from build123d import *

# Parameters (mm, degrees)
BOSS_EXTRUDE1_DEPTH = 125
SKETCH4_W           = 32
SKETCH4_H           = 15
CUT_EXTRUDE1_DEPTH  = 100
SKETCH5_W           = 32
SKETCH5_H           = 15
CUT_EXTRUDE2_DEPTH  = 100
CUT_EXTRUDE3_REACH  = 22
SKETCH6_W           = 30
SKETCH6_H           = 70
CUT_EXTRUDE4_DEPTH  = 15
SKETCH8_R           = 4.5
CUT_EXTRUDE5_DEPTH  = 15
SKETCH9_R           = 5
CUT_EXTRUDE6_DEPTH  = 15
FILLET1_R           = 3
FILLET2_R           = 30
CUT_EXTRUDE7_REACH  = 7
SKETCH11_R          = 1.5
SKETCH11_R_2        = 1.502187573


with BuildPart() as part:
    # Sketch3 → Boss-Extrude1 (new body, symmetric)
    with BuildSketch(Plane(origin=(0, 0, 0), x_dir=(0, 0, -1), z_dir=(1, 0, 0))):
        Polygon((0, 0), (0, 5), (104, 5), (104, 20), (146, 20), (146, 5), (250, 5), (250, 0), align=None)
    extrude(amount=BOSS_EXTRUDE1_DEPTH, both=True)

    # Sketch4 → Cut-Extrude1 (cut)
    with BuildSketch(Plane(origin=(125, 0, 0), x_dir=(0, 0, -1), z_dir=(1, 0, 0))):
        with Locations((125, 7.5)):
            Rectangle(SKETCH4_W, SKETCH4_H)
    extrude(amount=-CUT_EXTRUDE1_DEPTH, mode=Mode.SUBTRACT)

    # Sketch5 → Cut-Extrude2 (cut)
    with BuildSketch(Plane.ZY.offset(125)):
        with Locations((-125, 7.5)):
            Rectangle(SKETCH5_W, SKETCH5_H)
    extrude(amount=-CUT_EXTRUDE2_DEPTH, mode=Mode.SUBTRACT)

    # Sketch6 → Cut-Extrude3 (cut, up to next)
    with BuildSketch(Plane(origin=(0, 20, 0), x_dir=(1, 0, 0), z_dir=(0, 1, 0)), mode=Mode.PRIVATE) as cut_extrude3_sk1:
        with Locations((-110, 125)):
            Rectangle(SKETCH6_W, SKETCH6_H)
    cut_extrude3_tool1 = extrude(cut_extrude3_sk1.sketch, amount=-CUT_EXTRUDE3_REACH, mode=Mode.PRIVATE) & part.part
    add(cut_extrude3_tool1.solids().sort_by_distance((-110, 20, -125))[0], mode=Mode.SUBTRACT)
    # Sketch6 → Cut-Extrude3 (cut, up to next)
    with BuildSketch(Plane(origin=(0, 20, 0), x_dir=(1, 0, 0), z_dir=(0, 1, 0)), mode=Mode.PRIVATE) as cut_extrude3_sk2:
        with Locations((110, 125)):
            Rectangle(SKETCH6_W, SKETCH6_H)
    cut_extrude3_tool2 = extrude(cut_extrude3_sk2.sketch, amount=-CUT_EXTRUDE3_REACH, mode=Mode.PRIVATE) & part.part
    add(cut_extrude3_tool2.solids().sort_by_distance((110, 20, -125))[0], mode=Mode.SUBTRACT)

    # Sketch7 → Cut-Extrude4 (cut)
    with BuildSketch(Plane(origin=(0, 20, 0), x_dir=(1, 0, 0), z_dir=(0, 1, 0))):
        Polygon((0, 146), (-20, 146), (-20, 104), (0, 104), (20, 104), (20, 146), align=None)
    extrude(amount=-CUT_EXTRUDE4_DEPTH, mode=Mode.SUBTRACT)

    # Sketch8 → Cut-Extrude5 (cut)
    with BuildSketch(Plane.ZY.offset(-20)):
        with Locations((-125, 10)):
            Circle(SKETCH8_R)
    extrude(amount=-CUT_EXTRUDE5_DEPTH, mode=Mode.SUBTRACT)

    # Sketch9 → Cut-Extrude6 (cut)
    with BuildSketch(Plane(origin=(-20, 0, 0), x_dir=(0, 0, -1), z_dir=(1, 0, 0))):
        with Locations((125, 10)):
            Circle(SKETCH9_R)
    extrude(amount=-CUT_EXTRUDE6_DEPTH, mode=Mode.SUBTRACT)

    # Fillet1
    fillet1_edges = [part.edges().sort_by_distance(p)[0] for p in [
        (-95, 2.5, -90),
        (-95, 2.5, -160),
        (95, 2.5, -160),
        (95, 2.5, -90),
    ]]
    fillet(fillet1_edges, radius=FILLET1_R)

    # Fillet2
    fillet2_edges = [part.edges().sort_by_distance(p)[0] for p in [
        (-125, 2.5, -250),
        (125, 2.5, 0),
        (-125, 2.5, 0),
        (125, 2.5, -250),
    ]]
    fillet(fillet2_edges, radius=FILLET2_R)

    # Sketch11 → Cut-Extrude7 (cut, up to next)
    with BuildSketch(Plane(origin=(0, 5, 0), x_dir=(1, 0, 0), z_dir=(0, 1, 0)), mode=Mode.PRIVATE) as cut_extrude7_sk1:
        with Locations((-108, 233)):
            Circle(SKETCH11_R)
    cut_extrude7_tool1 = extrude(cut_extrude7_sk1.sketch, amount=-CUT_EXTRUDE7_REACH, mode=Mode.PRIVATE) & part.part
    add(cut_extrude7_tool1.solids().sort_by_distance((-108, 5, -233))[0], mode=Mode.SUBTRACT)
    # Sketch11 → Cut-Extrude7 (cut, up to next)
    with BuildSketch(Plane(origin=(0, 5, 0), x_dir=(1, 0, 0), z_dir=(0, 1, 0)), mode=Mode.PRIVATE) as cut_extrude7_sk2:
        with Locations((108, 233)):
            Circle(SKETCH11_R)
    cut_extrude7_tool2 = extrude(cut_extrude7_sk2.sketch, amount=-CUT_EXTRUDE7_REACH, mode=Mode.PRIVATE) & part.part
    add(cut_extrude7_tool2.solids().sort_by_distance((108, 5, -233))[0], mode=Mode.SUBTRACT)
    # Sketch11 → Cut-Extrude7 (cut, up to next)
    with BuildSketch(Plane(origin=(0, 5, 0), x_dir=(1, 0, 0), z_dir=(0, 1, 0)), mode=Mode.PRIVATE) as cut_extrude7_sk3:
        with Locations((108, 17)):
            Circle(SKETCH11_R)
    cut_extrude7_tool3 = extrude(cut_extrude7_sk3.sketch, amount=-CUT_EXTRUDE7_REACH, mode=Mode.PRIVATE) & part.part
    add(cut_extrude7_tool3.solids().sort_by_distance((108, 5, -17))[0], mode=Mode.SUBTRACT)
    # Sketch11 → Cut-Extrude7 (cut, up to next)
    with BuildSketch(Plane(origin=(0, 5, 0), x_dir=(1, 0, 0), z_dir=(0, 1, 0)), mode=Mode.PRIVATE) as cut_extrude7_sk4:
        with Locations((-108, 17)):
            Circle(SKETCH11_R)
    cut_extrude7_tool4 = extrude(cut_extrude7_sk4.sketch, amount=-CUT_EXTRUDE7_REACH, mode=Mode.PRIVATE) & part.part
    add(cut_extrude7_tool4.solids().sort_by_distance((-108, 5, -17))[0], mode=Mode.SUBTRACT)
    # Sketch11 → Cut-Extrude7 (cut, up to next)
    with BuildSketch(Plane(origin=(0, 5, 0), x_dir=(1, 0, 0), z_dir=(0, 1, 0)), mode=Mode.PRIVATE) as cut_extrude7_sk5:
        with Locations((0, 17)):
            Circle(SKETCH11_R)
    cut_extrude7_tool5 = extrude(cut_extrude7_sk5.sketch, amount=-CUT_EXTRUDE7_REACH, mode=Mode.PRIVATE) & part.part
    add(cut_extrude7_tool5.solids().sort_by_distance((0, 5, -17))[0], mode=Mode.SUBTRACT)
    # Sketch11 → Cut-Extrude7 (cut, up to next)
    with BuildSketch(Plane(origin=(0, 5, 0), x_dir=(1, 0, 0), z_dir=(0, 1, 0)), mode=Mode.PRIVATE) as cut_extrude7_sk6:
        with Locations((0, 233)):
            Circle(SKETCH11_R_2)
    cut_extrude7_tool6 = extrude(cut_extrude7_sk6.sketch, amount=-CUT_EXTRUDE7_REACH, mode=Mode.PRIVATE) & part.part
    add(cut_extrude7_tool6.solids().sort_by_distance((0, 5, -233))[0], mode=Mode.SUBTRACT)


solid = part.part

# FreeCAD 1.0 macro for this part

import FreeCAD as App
import Part
import Sketcher

V = App.Vector


def edges_at(feature, points):
    """Names of the edges that pass closest to the given points."""
    edges = feature.Shape.Edges
    near = lambda p: min(range(len(edges)), key=lambda i: edges[i].distToShape(Part.Vertex(*p))[0])
    return sorted({f"Edge{near(p) + 1}" for p in points})


def add_polygon(sketch, points):
    """Adds a closed chain of lines whose ends are joined by coincident constraints."""
    first, n = sketch.GeometryCount, len(points)
    for a, b in zip(points, points[1:] + points[:1]):
        sketch.addGeometry(Part.LineSegment(App.Vector(*a, 0), App.Vector(*b, 0)), False)
    for i in range(n):
        sketch.addConstraint(Sketcher.Constraint("Coincident", first + i, 2, first + (i + 1) % n, 1))

doc = App.newDocument("Part")
params = doc.addObject("Spreadsheet::Sheet", "Params")
for row, (alias, value) in enumerate([
    ("sketch1_width", "5 mm"),
    ("sketch1_width2", "15 mm"),
    ("sketch1_height", "250 mm"),
    ("sketch1_height2", "104 mm"),
    ("pad1_length", "250 mm"),
    ("sketch2_width", "15 mm"),
    ("sketch2_height", "32 mm"),
    ("pocket1_length", "100 mm"),
    ("sketch3_width", "15 mm"),
    ("sketch3_height", "32 mm"),
    ("pocket2_length", "100 mm"),
    ("sketch4_width", "30 mm"),
    ("sketch4_height", "70 mm"),
    ("pocket3_length", "20 mm"),
    ("sketch5_width", "30 mm"),
    ("sketch5_height", "70 mm"),
    ("pocket4_length", "20 mm"),
    ("sketch6_width", "40 mm"),
    ("sketch6_height", "42 mm"),
    ("pocket5_length", "15 mm"),
    ("sketch7_diameter", "9 mm"),
    ("pocket6_length", "15 mm"),
    ("sketch8_diameter", "10 mm"),
    ("pocket7_length", "15 mm"),
    ("fillet_radius", "3 mm"),
    ("fillet2_radius", "30 mm"),
    ("sketch9_diameter", "3 mm"),
    ("sketch10_diameter", "3 mm"),
    ("sketch11_diameter", "3 mm"),
    ("sketch12_diameter", "3 mm"),
    ("sketch13_diameter", "3 mm"),
], start=1):
    params.set(f"A{row}", alias)
    params.set(f"B{row}", "=" + value)
    params.setAlias(f"B{row}", alias)

body = doc.addObject("PartDesign::Body", "Body")

sketch1 = body.newObject("Sketcher::SketchObject", "Sketch")
sketch1.AttachmentSupport = (doc.getObject("YZ_Plane"), [""])
sketch1.MapMode = "FlatFace"
add_polygon(sketch1, [(5, 0), (0, 0), (0, -250), (5, -250), (5, -146), (20, -146), (20, -104), (5, -104)])
sketch1.addConstraint(Sketcher.Constraint("Horizontal", 0))
sketch1.addConstraint(Sketcher.Constraint("Vertical", 1))
sketch1.addConstraint(Sketcher.Constraint("Horizontal", 2))
sketch1.addConstraint(Sketcher.Constraint("Vertical", 3))
sketch1.addConstraint(Sketcher.Constraint("Horizontal", 4))
sketch1.addConstraint(Sketcher.Constraint("Vertical", 5))
sketch1.addConstraint(Sketcher.Constraint("Horizontal", 6))
sketch1.addConstraint(Sketcher.Constraint("Vertical", 7))
sketch1.addConstraint(Sketcher.Constraint("Coincident", 0, 2, -1, 1))
sketch1.addConstraint(Sketcher.Constraint("Vertical", 3, 2, 6, 2))
sketch1.addConstraint(Sketcher.Constraint("Equal", 3, 7))
sketch1.addConstraint(Sketcher.Constraint("DistanceX", 0, 2, 0, 1, 5.0))
sketch1.addConstraint(Sketcher.Constraint("DistanceX", 4, 1, 4, 2, 15.0))
sketch1.addConstraint(Sketcher.Constraint("DistanceY", 1, 2, 1, 1, 250.0))
sketch1.addConstraint(Sketcher.Constraint("DistanceY", 3, 1, 3, 2, 104.0))
sketch1.setExpression("Constraints[19]", "Params.sketch1_width")
sketch1.setExpression("Constraints[20]", "Params.sketch1_width2")
sketch1.setExpression("Constraints[21]", "Params.sketch1_height")
sketch1.setExpression("Constraints[22]", "Params.sketch1_height2")
pad1 = body.newObject("PartDesign::Pad", "Pad")
pad1.Profile = sketch1
pad1.setExpression("Length", "Params.pad1_length")
pad1.Midplane = True

sketch2 = body.newObject("Sketcher::SketchObject", "Sketch001")
sketch2.AttachmentSupport = (doc.getObject("YZ_Plane"), [""])
sketch2.MapMode = "FlatFace"
sketch2.AttachmentOffset = App.Placement(V(0, 0, 125), App.Rotation())
add_polygon(sketch2, [(15, -109), (0, -109), (0, -141), (15, -141)])
sketch2.addConstraint(Sketcher.Constraint("Horizontal", 0))
sketch2.addConstraint(Sketcher.Constraint("Vertical", 1))
sketch2.addConstraint(Sketcher.Constraint("Horizontal", 2))
sketch2.addConstraint(Sketcher.Constraint("Vertical", 3))
sketch2.addConstraint(Sketcher.Constraint("PointOnObject", 0, 2, -2))
sketch2.addConstraint(Sketcher.Constraint("DistanceX", 0, 2, 0, 1, 15.0))
sketch2.addConstraint(Sketcher.Constraint("DistanceY", 1, 2, 1, 1, 32.0))
sketch2.addConstraint(Sketcher.Constraint("DistanceY", 0, 2, -1, 1, 109.0))
sketch2.setExpression("Constraints[9]", "Params.sketch2_width")
sketch2.setExpression("Constraints[10]", "Params.sketch2_height")
pocket1 = body.newObject("PartDesign::Pocket", "Pocket")
pocket1.Profile = sketch2
pocket1.setExpression("Length", "Params.pocket1_length")

sketch3 = body.newObject("Sketcher::SketchObject", "Sketch002")
sketch3.AttachmentSupport = (doc.getObject("YZ_Plane"), [""])
sketch3.MapMode = "FlatFace"
sketch3.AttachmentOffset = App.Placement(V(0, 0, -125), App.Rotation())
add_polygon(sketch3, [(15, -141), (0, -141), (0, -109), (15, -109)])
sketch3.addConstraint(Sketcher.Constraint("Horizontal", 0))
sketch3.addConstraint(Sketcher.Constraint("Vertical", 1))
sketch3.addConstraint(Sketcher.Constraint("Horizontal", 2))
sketch3.addConstraint(Sketcher.Constraint("Vertical", 3))
sketch3.addConstraint(Sketcher.Constraint("PointOnObject", 0, 2, -2))
sketch3.addConstraint(Sketcher.Constraint("DistanceX", 0, 2, 0, 1, 15.0))
sketch3.addConstraint(Sketcher.Constraint("DistanceY", 1, 1, 1, 2, 32.0))
sketch3.addConstraint(Sketcher.Constraint("DistanceY", 0, 2, -1, 1, 141.0))
sketch3.setExpression("Constraints[9]", "Params.sketch3_width")
sketch3.setExpression("Constraints[10]", "Params.sketch3_height")
pocket2 = body.newObject("PartDesign::Pocket", "Pocket001")
pocket2.Profile = sketch3
pocket2.setExpression("Length", "Params.pocket2_length")
pocket2.Reversed = True

sketch4 = body.newObject("Sketcher::SketchObject", "Sketch003")
sketch4.AttachmentSupport = (doc.getObject("XZ_Plane"), [""])
sketch4.MapMode = "FlatFace"
sketch4.AttachmentOffset = App.Placement(V(0, 0, -20), App.Rotation())
add_polygon(sketch4, [(-125, -160), (-125, -90), (-95, -90), (-95, -160)])
sketch4.addConstraint(Sketcher.Constraint("Vertical", 0))
sketch4.addConstraint(Sketcher.Constraint("Horizontal", 1))
sketch4.addConstraint(Sketcher.Constraint("Vertical", 2))
sketch4.addConstraint(Sketcher.Constraint("Horizontal", 3))
sketch4.addConstraint(Sketcher.Constraint("DistanceX", 1, 1, 1, 2, 30.0))
sketch4.addConstraint(Sketcher.Constraint("DistanceY", 0, 1, 0, 2, 70.0))
sketch4.addConstraint(Sketcher.Constraint("DistanceX", 0, 2, -1, 1, 125.0))
sketch4.addConstraint(Sketcher.Constraint("DistanceY", 0, 2, -1, 1, 90.0))
sketch4.setExpression("Constraints[8]", "Params.sketch4_width")
sketch4.setExpression("Constraints[9]", "Params.sketch4_height")
pocket3 = body.newObject("PartDesign::Pocket", "Pocket002")
pocket3.Profile = sketch4
pocket3.setExpression("Length", "Params.pocket3_length")
pocket3.Reversed = True

sketch5 = body.newObject("Sketcher::SketchObject", "Sketch004")
sketch5.AttachmentSupport = (doc.getObject("XZ_Plane"), [""])
sketch5.MapMode = "FlatFace"
sketch5.AttachmentOffset = App.Placement(V(0, 0, -20), App.Rotation())
add_polygon(sketch5, [(95, -160), (95, -90), (125, -90), (125, -160)])
sketch5.addConstraint(Sketcher.Constraint("Vertical", 0))
sketch5.addConstraint(Sketcher.Constraint("Horizontal", 1))
sketch5.addConstraint(Sketcher.Constraint("Vertical", 2))
sketch5.addConstraint(Sketcher.Constraint("Horizontal", 3))
sketch5.addConstraint(Sketcher.Constraint("DistanceX", 1, 1, 1, 2, 30.0))
sketch5.addConstraint(Sketcher.Constraint("DistanceY", 0, 1, 0, 2, 70.0))
sketch5.addConstraint(Sketcher.Constraint("DistanceX", -1, 1, 0, 2, 95.0))
sketch5.addConstraint(Sketcher.Constraint("DistanceY", 0, 2, -1, 1, 90.0))
sketch5.setExpression("Constraints[8]", "Params.sketch5_width")
sketch5.setExpression("Constraints[9]", "Params.sketch5_height")
pocket4 = body.newObject("PartDesign::Pocket", "Pocket003")
pocket4.Profile = sketch5
pocket4.setExpression("Length", "Params.pocket4_length")
pocket4.Reversed = True

sketch6 = body.newObject("Sketcher::SketchObject", "Sketch005")
sketch6.AttachmentSupport = (doc.getObject("XZ_Plane"), [""])
sketch6.MapMode = "FlatFace"
sketch6.AttachmentOffset = App.Placement(V(0, 0, -20), App.Rotation())
add_polygon(sketch6, [(-20, -146), (-20, -104), (20, -104), (20, -146)])
sketch6.addConstraint(Sketcher.Constraint("Vertical", 0))
sketch6.addConstraint(Sketcher.Constraint("Horizontal", 1))
sketch6.addConstraint(Sketcher.Constraint("Vertical", 2))
sketch6.addConstraint(Sketcher.Constraint("Horizontal", 3))
sketch6.addConstraint(Sketcher.Constraint("DistanceX", 1, 1, 1, 2, 40.0))
sketch6.addConstraint(Sketcher.Constraint("DistanceY", 0, 1, 0, 2, 42.0))
sketch6.addConstraint(Sketcher.Constraint("DistanceX", 0, 2, -1, 1, 20.0))
sketch6.addConstraint(Sketcher.Constraint("DistanceY", 0, 2, -1, 1, 104.0))
sketch6.setExpression("Constraints[8]", "Params.sketch6_width")
sketch6.setExpression("Constraints[9]", "Params.sketch6_height")
pocket5 = body.newObject("PartDesign::Pocket", "Pocket004")
pocket5.Profile = sketch6
pocket5.setExpression("Length", "Params.pocket5_length")
pocket5.Reversed = True

sketch7 = body.newObject("Sketcher::SketchObject", "Sketch006")
sketch7.AttachmentSupport = (doc.getObject("YZ_Plane"), [""])
sketch7.MapMode = "FlatFace"
sketch7.AttachmentOffset = App.Placement(V(0, 0, 20), App.Rotation())
sketch7.addGeometry(Part.Circle(V(10, -125, 0), V(0, 0, 1), 4.5), False)
sketch7.addConstraint(Sketcher.Constraint("Diameter", 0, 9.0))
sketch7.addConstraint(Sketcher.Constraint("DistanceX", -1, 1, 0, 3, 10.0))
sketch7.addConstraint(Sketcher.Constraint("DistanceY", 0, 3, -1, 1, 125.0))
sketch7.setExpression("Constraints[0]", "Params.sketch7_diameter")
pocket6 = body.newObject("PartDesign::Pocket", "Pocket005")
pocket6.Profile = sketch7
pocket6.setExpression("Length", "Params.pocket6_length")
pocket6.Reversed = True

sketch8 = body.newObject("Sketcher::SketchObject", "Sketch007")
sketch8.AttachmentSupport = (doc.getObject("YZ_Plane"), [""])
sketch8.MapMode = "FlatFace"
sketch8.AttachmentOffset = App.Placement(V(0, 0, -20), App.Rotation())
sketch8.addGeometry(Part.Circle(V(10, -125, 0), V(0, 0, 1), 5), False)
sketch8.addConstraint(Sketcher.Constraint("Diameter", 0, 10.0))
sketch8.addConstraint(Sketcher.Constraint("DistanceX", -1, 1, 0, 3, 10.0))
sketch8.addConstraint(Sketcher.Constraint("DistanceY", 0, 3, -1, 1, 125.0))
sketch8.setExpression("Constraints[0]", "Params.sketch8_diameter")
pocket7 = body.newObject("PartDesign::Pocket", "Pocket006")
pocket7.Profile = sketch8
pocket7.setExpression("Length", "Params.pocket7_length")
doc.recompute()

fillet = body.newObject("PartDesign::Fillet", "Fillet")
fillet.Base = (pocket7, edges_at(pocket7, [
    (-95, 2.5, -90),
    (-95, 2.5, -160),
    (95, 2.5, -160),
    (95, 2.5, -90),
]))
fillet.setExpression("Radius", "Params.fillet_radius")
doc.recompute()

fillet2 = body.newObject("PartDesign::Fillet", "Fillet001")
fillet2.Base = (fillet, edges_at(fillet, [
    (-125, 2.5, -250),
    (125, 2.5, 0),
    (-125, 2.5, 0),
    (125, 2.5, -250),
]))
fillet2.setExpression("Radius", "Params.fillet2_radius")

sketch9 = body.newObject("Sketcher::SketchObject", "Sketch008")
sketch9.AttachmentSupport = (doc.getObject("XZ_Plane"), [""])
sketch9.MapMode = "FlatFace"
sketch9.AttachmentOffset = App.Placement(V(0, 0, -5), App.Rotation())
sketch9.addGeometry(Part.Circle(V(-108, -233, 0), V(0, 0, 1), 1.5), False)
sketch9.addConstraint(Sketcher.Constraint("Diameter", 0, 3.0))
sketch9.addConstraint(Sketcher.Constraint("DistanceX", 0, 3, -1, 1, 108.0))
sketch9.addConstraint(Sketcher.Constraint("DistanceY", 0, 3, -1, 1, 233.0))
sketch9.setExpression("Constraints[0]", "Params.sketch9_diameter")
pocket8 = body.newObject("PartDesign::Pocket", "Pocket007")
pocket8.Profile = sketch9
pocket8.Type = "UpToFirst"
pocket8.Reversed = True

sketch10 = body.newObject("Sketcher::SketchObject", "Sketch009")
sketch10.AttachmentSupport = (doc.getObject("XZ_Plane"), [""])
sketch10.MapMode = "FlatFace"
sketch10.AttachmentOffset = App.Placement(V(0, 0, -5), App.Rotation())
sketch10.addGeometry(Part.Circle(V(108, -233, 0), V(0, 0, 1), 1.5), False)
sketch10.addConstraint(Sketcher.Constraint("Diameter", 0, 3.0))
sketch10.addConstraint(Sketcher.Constraint("DistanceX", -1, 1, 0, 3, 108.0))
sketch10.addConstraint(Sketcher.Constraint("DistanceY", 0, 3, -1, 1, 233.0))
sketch10.setExpression("Constraints[0]", "Params.sketch10_diameter")
pocket9 = body.newObject("PartDesign::Pocket", "Pocket008")
pocket9.Profile = sketch10
pocket9.Type = "UpToFirst"
pocket9.Reversed = True

sketch11 = body.newObject("Sketcher::SketchObject", "Sketch010")
sketch11.AttachmentSupport = (doc.getObject("XZ_Plane"), [""])
sketch11.MapMode = "FlatFace"
sketch11.AttachmentOffset = App.Placement(V(0, 0, -5), App.Rotation())
sketch11.addGeometry(Part.Circle(V(108, -17, 0), V(0, 0, 1), 1.5), False)
sketch11.addConstraint(Sketcher.Constraint("Diameter", 0, 3.0))
sketch11.addConstraint(Sketcher.Constraint("DistanceX", -1, 1, 0, 3, 108.0))
sketch11.addConstraint(Sketcher.Constraint("DistanceY", 0, 3, -1, 1, 17.0))
sketch11.setExpression("Constraints[0]", "Params.sketch11_diameter")
pocket10 = body.newObject("PartDesign::Pocket", "Pocket009")
pocket10.Profile = sketch11
pocket10.Type = "UpToFirst"
pocket10.Reversed = True

sketch12 = body.newObject("Sketcher::SketchObject", "Sketch011")
sketch12.AttachmentSupport = (doc.getObject("XZ_Plane"), [""])
sketch12.MapMode = "FlatFace"
sketch12.AttachmentOffset = App.Placement(V(0, 0, -5), App.Rotation())
sketch12.addGeometry(Part.Circle(V(-108, -17, 0), V(0, 0, 1), 1.5), False)
sketch12.addConstraint(Sketcher.Constraint("Diameter", 0, 3.0))
sketch12.addConstraint(Sketcher.Constraint("DistanceX", 0, 3, -1, 1, 108.0))
sketch12.addConstraint(Sketcher.Constraint("DistanceY", 0, 3, -1, 1, 17.0))
sketch12.setExpression("Constraints[0]", "Params.sketch12_diameter")
pocket11 = body.newObject("PartDesign::Pocket", "Pocket010")
pocket11.Profile = sketch12
pocket11.Type = "UpToFirst"
pocket11.Reversed = True

sketch13 = body.newObject("Sketcher::SketchObject", "Sketch012")
sketch13.AttachmentSupport = (doc.getObject("XZ_Plane"), [""])
sketch13.MapMode = "FlatFace"
sketch13.AttachmentOffset = App.Placement(V(0, 0, -5), App.Rotation())
sketch13.addGeometry(Part.Circle(V(0, -17, 0), V(0, 0, 1), 1.5), False)
sketch13.addConstraint(Sketcher.Constraint("PointOnObject", 0, 3, -2))
sketch13.addConstraint(Sketcher.Constraint("Diameter", 0, 3.0))
sketch13.addConstraint(Sketcher.Constraint("DistanceY", 0, 3, -1, 1, 17.0))
sketch13.setExpression("Constraints[1]", "Params.sketch13_diameter")
pocket12 = body.newObject("PartDesign::Pocket", "Pocket011")
pocket12.Profile = sketch13
pocket12.Type = "UpToFirst"
pocket12.Reversed = True

sketch14 = body.newObject("Sketcher::SketchObject", "Sketch013")
sketch14.AttachmentSupport = (doc.getObject("XZ_Plane"), [""])
sketch14.MapMode = "FlatFace"
sketch14.AttachmentOffset = App.Placement(V(0, 0, -5), App.Rotation())
sketch14.addGeometry(Part.Circle(V(0, -233, 0), V(0, 0, 1), 1.5), False)
sketch14.addConstraint(Sketcher.Constraint("PointOnObject", 0, 3, -2))
sketch14.addConstraint(Sketcher.Constraint("DistanceY", 0, 3, -1, 1, 233.0))
sketch14.addConstraint(Sketcher.Constraint("Diameter", 0, 3.004375))
pocket13 = body.newObject("PartDesign::Pocket", "Pocket012")
pocket13.Profile = sketch14
pocket13.Type = "UpToFirst"
pocket13.Reversed = True

doc.recompute()
